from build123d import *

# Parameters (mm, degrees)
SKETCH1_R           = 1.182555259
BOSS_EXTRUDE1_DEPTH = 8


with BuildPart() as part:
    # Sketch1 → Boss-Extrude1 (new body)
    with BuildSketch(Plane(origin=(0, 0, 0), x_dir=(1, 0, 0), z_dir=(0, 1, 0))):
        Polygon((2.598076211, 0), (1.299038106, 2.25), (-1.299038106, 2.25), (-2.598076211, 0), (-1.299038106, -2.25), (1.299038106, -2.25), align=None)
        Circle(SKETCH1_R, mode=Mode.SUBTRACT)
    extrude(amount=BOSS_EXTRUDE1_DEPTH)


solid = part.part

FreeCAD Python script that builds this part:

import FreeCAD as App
import Part
import Sketcher
from FreeCAD import Vector
Q = App.Units.Quantity

doc = App.newDocument("Part")
body = doc.addObject("PartDesign::Body", "Body")

sketch1 = body.newObject("Sketcher::SketchObject", "Sketch")
sketch1.AttachmentSupport = (doc.getObject("XZ_Plane"), [""])
sketch1.MapMode = "FlatFace"
sketch1.addGeometry(Part.LineSegment(Vector(2.6, 0, 0), Vector(1.3, -2.2, 0)), False)
sketch1.addGeometry(Part.LineSegment(Vector(1.3, -2.2, 0), Vector(-1.3, -2.2, 0)), False)
sketch1.addGeometry(Part.LineSegment(Vector(-1.3, -2.2, 0), Vector(-2.6, 0, 0)), False)
sketch1.addGeometry(Part.LineSegment(Vector(-2.6, 0, 0), Vector(-1.3, 2.2, 0)), False)
sketch1.addGeometry(Part.LineSegment(Vector(-1.3, 2.2, 0), Vector(1.3, 2.2, 0)), False)
sketch1.addGeometry(Part.LineSegment(Vector(1.3, 2.2, 0), Vector(2.6, 0, 0)), False)
sketch1.addGeometry(Part.Circle(Vector(0, 0, 0), Vector(0, 0, 1), 1.2), False)
sketch1.addConstraint(Sketcher.Constraint("Coincident", 0, 2, 1, 1))
sketch1.addConstraint(Sketcher.Constraint("Coincident", 1, 2, 2, 1))
sketch1.addConstraint(Sketcher.Constraint("Coincident", 2, 2, 3, 1))
sketch1.addConstraint(Sketcher.Constraint("Coincident", 3, 2, 4, 1))
sketch1.addConstraint(Sketcher.Constraint("Coincident", 4, 2, 5, 1))
sketch1.addConstraint(Sketcher.Constraint("Coincident", 5, 2, 0, 1))
sketch1.addConstraint(Sketcher.Constraint("Horizontal", 1))
sketch1.addConstraint(Sketcher.Constraint("Horizontal", 4))
sketch1.addConstraint(Sketcher.Constraint("Coincident", 6, 3, -1, 1))
sketch1.addConstraint(Sketcher.Constraint("Symmetric", 0, 2, 3, 2, -1, 1))
sketch1.addConstraint(Sketcher.Constraint("Symmetric", 2, 2, 5, 2, -1, 1))
sketch1.addConstraint(Sketcher.Constraint("PointOnObject", 2, 2, -1))
sketch1.addConstraint(Sketcher.Constraint("Parallel", 2, 5))
sketch1.addConstraint(Sketcher.Constraint("Vertical", 1, 2, 3, 2))
sketch1.addConstraint(Sketcher.Constraint("Angle", 0, Q("-120 deg")))
sketch1.addConstraint(Sketcher.Constraint("DistanceY", 1, 2, 3, 2, Q("4.5 mm")))
sketch1.addConstraint(Sketcher.Constraint("Diameter", 6, Q("2.365111 mm")))
sketch1.addConstraint(Sketcher.Constraint("DistanceX", 1, 2, 1, 1, Q("2.598076 mm")))
pad1 = body.newObject("PartDesign::Pad", "Pad")
pad1.Profile = sketch1
pad1.Length = 8
pad1.Reversed = True

doc.recompute()
